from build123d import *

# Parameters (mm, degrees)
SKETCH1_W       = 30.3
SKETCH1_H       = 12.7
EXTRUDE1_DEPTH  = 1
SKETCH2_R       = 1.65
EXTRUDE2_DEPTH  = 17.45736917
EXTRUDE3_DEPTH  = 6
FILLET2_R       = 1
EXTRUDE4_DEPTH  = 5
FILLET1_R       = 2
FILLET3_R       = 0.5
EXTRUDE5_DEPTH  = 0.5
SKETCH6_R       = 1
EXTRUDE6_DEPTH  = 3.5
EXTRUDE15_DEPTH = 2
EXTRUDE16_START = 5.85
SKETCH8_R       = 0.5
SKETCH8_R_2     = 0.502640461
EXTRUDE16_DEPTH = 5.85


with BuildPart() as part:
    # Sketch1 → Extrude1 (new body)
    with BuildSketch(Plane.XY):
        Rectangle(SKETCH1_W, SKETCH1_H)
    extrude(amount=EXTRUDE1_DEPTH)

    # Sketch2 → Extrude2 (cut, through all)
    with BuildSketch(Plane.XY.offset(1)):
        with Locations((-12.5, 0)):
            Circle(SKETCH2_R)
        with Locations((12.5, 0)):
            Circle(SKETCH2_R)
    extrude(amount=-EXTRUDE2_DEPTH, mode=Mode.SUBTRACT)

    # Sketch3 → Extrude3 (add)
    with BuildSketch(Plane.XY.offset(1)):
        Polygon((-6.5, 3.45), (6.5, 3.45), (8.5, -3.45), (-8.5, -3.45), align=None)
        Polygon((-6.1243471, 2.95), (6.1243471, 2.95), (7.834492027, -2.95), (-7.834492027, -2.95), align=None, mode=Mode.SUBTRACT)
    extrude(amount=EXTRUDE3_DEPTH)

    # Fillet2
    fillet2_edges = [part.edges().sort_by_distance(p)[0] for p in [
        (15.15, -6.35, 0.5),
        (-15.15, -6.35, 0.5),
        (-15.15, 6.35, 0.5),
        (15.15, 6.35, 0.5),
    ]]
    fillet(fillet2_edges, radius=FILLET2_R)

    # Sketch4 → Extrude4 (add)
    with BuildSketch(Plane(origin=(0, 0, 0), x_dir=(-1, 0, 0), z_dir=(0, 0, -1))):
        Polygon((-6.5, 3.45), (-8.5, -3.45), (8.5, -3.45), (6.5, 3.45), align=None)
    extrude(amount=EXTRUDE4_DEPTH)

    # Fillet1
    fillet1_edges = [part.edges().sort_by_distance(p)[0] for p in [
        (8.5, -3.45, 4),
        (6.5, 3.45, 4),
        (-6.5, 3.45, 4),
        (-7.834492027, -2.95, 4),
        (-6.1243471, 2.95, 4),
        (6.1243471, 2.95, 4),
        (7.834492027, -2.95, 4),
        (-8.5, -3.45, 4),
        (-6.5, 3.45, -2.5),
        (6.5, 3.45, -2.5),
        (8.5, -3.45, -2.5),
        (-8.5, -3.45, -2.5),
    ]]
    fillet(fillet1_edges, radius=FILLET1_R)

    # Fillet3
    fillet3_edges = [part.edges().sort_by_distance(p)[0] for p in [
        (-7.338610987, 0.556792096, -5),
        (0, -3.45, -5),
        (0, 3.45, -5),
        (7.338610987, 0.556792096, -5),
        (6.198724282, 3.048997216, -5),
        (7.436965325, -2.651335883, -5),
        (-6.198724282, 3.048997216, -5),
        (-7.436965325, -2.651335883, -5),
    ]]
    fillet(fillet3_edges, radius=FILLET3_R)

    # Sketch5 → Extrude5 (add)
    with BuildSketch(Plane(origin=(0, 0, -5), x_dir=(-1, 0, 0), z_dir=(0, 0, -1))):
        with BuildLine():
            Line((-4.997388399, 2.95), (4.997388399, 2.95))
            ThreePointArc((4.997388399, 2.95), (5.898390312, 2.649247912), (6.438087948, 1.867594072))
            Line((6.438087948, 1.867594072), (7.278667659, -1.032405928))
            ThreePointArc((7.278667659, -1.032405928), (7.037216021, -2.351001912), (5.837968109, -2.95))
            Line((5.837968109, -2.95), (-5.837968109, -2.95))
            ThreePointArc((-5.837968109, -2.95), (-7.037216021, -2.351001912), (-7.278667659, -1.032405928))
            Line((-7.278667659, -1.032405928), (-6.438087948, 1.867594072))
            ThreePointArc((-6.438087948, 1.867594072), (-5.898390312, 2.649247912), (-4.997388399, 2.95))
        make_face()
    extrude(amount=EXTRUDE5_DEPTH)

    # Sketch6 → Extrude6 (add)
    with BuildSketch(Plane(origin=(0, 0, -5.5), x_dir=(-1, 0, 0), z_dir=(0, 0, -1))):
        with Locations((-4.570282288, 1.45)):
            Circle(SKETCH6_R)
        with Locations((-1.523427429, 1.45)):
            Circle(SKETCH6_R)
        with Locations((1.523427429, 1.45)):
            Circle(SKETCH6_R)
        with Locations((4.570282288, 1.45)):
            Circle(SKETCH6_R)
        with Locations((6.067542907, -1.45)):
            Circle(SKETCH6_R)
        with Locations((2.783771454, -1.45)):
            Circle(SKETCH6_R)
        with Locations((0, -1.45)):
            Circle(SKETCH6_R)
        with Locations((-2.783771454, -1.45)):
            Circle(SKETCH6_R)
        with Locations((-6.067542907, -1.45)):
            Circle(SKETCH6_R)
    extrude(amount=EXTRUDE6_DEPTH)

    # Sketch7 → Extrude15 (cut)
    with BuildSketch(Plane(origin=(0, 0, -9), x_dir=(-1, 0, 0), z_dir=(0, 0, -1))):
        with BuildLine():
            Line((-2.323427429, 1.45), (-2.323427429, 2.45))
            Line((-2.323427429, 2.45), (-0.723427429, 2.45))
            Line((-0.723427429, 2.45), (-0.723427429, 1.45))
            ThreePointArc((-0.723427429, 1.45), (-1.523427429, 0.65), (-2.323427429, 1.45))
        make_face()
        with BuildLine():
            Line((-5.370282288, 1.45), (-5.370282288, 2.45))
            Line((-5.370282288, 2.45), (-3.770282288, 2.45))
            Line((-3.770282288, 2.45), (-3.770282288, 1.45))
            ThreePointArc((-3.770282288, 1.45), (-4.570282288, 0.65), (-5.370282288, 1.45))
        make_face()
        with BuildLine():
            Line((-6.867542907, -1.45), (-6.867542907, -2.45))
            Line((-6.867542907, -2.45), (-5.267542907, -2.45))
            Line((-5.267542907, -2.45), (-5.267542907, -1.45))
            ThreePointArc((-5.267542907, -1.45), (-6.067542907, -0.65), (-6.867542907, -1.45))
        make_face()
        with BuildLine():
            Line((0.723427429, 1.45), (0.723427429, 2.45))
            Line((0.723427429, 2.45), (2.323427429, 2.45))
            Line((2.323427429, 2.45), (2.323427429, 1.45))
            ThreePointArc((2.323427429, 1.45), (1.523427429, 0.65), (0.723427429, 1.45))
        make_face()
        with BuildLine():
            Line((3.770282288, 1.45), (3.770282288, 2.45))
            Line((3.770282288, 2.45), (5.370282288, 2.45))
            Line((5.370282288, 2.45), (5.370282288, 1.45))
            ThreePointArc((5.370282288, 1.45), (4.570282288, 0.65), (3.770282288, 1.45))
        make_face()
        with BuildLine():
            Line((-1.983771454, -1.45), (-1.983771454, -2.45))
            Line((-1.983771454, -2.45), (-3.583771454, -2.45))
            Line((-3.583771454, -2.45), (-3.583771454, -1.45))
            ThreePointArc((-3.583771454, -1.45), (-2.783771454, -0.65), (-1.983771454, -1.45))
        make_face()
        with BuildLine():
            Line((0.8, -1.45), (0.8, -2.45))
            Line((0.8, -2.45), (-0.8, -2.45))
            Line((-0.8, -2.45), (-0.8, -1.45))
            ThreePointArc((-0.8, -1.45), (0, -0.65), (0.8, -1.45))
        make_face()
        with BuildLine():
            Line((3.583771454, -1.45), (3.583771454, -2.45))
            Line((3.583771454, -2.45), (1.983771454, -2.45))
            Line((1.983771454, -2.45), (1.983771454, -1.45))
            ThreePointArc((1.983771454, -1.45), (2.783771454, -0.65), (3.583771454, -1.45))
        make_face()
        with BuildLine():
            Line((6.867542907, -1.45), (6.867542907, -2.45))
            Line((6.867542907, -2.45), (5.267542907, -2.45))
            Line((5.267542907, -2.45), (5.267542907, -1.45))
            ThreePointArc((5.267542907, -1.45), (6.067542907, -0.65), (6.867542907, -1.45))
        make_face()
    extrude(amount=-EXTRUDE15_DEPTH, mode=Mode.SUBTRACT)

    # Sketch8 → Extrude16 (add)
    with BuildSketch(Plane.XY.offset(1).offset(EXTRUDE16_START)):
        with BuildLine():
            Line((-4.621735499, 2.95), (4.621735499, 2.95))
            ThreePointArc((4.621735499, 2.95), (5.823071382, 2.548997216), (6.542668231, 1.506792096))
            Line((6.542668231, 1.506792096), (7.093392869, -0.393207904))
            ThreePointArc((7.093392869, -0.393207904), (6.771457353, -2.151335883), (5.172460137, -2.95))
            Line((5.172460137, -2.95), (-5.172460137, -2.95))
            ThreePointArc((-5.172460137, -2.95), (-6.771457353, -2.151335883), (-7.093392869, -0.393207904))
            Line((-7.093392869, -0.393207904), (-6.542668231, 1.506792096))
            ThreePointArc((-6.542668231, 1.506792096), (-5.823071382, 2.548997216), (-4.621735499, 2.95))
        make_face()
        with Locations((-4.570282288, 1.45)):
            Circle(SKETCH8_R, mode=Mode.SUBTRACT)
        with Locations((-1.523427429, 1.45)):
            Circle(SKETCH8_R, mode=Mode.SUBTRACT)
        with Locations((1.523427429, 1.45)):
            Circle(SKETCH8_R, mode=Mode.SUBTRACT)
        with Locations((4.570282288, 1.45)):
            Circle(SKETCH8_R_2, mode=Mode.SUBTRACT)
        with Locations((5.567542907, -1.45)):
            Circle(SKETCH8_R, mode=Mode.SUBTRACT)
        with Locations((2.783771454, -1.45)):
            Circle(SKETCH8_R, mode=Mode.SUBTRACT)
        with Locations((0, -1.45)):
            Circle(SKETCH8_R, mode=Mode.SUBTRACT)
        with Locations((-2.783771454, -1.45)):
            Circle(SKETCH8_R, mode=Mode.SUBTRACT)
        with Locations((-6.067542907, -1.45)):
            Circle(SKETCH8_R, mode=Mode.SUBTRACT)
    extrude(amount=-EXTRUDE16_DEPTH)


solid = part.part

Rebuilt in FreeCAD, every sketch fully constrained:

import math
import FreeCAD as App
import Part
import Sketcher


def edges_at(feature, points):
    """Names of the edges that pass closest to the given points."""
    edges = feature.Shape.Edges
    near = lambda p: min(range(len(edges)), key=lambda i: edges[i].distToShape(Part.Vertex(*p))[0])
    return sorted({f"Edge{near(p) + 1}" for p in points})


def add_polygon(sketch, points):
    """Adds a closed chain of lines whose ends are joined by coincident constraints."""
    first, n = sketch.GeometryCount, len(points)
    for a, b in zip(points, points[1:] + points[:1]):
        sketch.addGeometry(Part.LineSegment(App.Vector(*a, 0), App.Vector(*b, 0)), False)
    for i in range(n):
        sketch.addConstraint(Sketcher.Constraint("Coincident", first + i, 2, first + (i + 1) % n, 1))

doc = App.newDocument("Part")
body = doc.addObject("PartDesign::Body", "Body")

sketch1 = body.newObject("Sketcher::SketchObject", "Sketch")
sketch1.AttachmentSupport = (doc.getObject("XY_Plane"), [""])
sketch1.MapMode = "FlatFace"
add_polygon(sketch1, [(-15, 6), (-15, -6), (15, -6), (15, 6)])
sketch1.addConstraint([
    Sketcher.Constraint("Vertical", 0),
    Sketcher.Constraint("Horizontal", 1),
    Sketcher.Constraint("Vertical", 2),
    Sketcher.Constraint("Horizontal", 3),
    Sketcher.Constraint("Symmetric", 0, 2, 2, 2, -1, 1),
    Sketcher.Constraint("DistanceX", 1, 1, 1, 2, 30.3),
    Sketcher.Constraint("DistanceY", 0, 2, 0, 1, 12.7),
])
pad1 = body.newObject("PartDesign::Pad", "Pad")
pad1.Profile = sketch1
pad1.Length = 1

sketch2 = body.newObject("Sketcher::SketchObject", "Sketch001")
sketch2.AttachmentSupport = (doc.getObject("XY_Plane"), [""])
sketch2.MapMode = "FlatFace"
sketch2.AttachmentOffset = App.Placement(App.Vector(0, 0, 1), App.Rotation())
sketch2.addGeometry([
    Part.Circle(App.Vector(-12.5, 0, 0), App.Vector(0, 0, 1), 1.6),
    Part.Circle(App.Vector(12.5, 0, 0), App.Vector(0, 0, 1), 1.6),
], False)
sketch2.addConstraint([
    Sketcher.Constraint("Equal", 0, 1),
    Sketcher.Constraint("Symmetric", 0, 3, 1, 3, -1, 1),
    Sketcher.Constraint("PointOnObject", 0, 3, -1),
    Sketcher.Constraint("Diameter", 0, 3.3),
    Sketcher.Constraint("DistanceX", 0, 3, 1, 3, 25.0),
])
pocket1 = body.newObject("PartDesign::Pocket", "Pocket")
pocket1.Profile = sketch2
pocket1.Type = "ThroughAll"

sketch3 = body.newObject("Sketcher::SketchObject", "Sketch002")
sketch3.AttachmentSupport = (doc.getObject("XY_Plane"), [""])
sketch3.MapMode = "FlatFace"
sketch3.AttachmentOffset = App.Placement(App.Vector(0, 0, 1), App.Rotation())
add_polygon(sketch3, [(6, 3), (-6, 3), (-8, -3), (8, -3)])
add_polygon(sketch3, [(-6, 3), (6, 3), (8, -3), (-8, -3)])
sketch3.addConstraint([
    Sketcher.Constraint("Horizontal", 0),
    Sketcher.Constraint("Horizontal", 2),
    Sketcher.Constraint("Horizontal", 4),
    Sketcher.Constraint("Horizontal", 6),
    Sketcher.Constraint("Parallel", 3, 5),
    Sketcher.Constraint("Parallel", 1, 7),
    Sketcher.Constraint("Equal", 1, 3),
    Sketcher.Constraint("DistanceX", 0, 2, 0, 1, 13.0),
    Sketcher.Constraint("DistanceX", 2, 1, 2, 2, 17.0),
    Sketcher.Constraint("DistanceX", 0, 2, -1, 1, 6.5),
    Sketcher.Constraint("DistanceY", 1, 2, 0, 2, 6.9),
    Sketcher.Constraint("DistanceY", 4, 2, 3, 2, 0.5),
    Sketcher.Constraint("DistanceY", 2, 2, 5, 2, 0.5),
    Sketcher.Constraint("DistanceY", -1, 1, 0, 2, 3.45),
    Sketcher.Constraint("DistanceX", 4, 1, 4, 2, 12.248694),
    Sketcher.Constraint("DistanceX", -1, 1, 4, 2, 6.124347),
])
pad2 = body.newObject("PartDesign::Pad", "Pad001")
pad2.Profile = sketch3
pad2.Length = 6
doc.recompute()

fillet = body.newObject("PartDesign::Fillet", "Fillet")
fillet.Base = (pad2, edges_at(pad2, [
    (15.15, -6.35, 0.5),
    (-15.15, -6.35, 0.5),
    (-15.15, 6.35, 0.5),
    (15.15, 6.35, 0.5),
]))
fillet.Radius = 1

sketch4 = body.newObject("Sketcher::SketchObject", "Sketch003")
sketch4.AttachmentSupport = (doc.getObject("XY_Plane"), [""])
sketch4.MapMode = "FlatFace"
add_polygon(sketch4, [(6, 3), (8, -3), (-8, -3), (-6, 3)])
sketch4.addConstraint([
    Sketcher.Constraint("Horizontal", 1),
    Sketcher.Constraint("Horizontal", 3),
    Sketcher.Constraint("Equal", 0, 2),
    Sketcher.Constraint("DistanceX", 1, 2, 1, 1, 17.0),
    Sketcher.Constraint("DistanceX", 3, 1, 3, 2, 13.0),
    Sketcher.Constraint("DistanceX", -1, 1, 0, 2, 8.5),
    Sketcher.Constraint("DistanceY", 1, 2, 2, 2, 6.9),
    Sketcher.Constraint("DistanceY", 0, 2, -1, 1, 3.45),
])
pad3 = body.newObject("PartDesign::Pad", "Pad002")
pad3.Profile = sketch4
pad3.Length = 5
pad3.Reversed = True
doc.recompute()

fillet2 = body.newObject("PartDesign::Fillet", "Fillet001")
fillet2.Base = (pad3, edges_at(pad3, [
    (8.5, -3.45, 4),
    (6.5, 3.45, 4),
    (-6.5, 3.45, 4),
    (-7.834, -2.95, 4),
    (-6.124, 2.95, 4),
    (6.124, 2.95, 4),
    (7.834, -2.95, 4),
    (-8.5, -3.45, 4),
    (-6.5, 3.45, -2.5),
    (6.5, 3.45, -2.5),
    (8.5, -3.45, -2.5),
    (-8.5, -3.45, -2.5),
]))
fillet2.Radius = 2
doc.recompute()

fillet3 = body.newObject("PartDesign::Fillet", "Fillet002")
fillet3.Base = (fillet2, edges_at(fillet2, [
    (-7.339, 0.557, -5),
    (0, -3.45, -5),
    (0, 3.45, -5),
    (7.339, 0.557, -5),
    (6.199, 3.049, -5),
    (7.437, -2.651, -5),
    (-6.199, 3.049, -5),
    (-7.437, -2.651, -5),
]))
fillet3.Radius = 0.5

sketch5 = body.newObject("Sketcher::SketchObject", "Sketch004")
sketch5.AttachmentSupport = (doc.getObject("XY_Plane"), [""])
sketch5.MapMode = "FlatFace"
sketch5.AttachmentOffset = App.Placement(App.Vector(0, 0, -5), App.Rotation())
sketch5.addGeometry([
    Part.LineSegment(App.Vector(-5, 3, 0), App.Vector(5, 3, 0)),
    Part.ArcOfCircle(Part.Circle(App.Vector(5, 1.5, 0), App.Vector(0, 0, 1), 1.5), math.radians(16), math.radians(90)),
    Part.LineSegment(App.Vector(6.4, 1.9, 0), App.Vector(7.3, -1, 0)),
    Part.ArcOfCircle(Part.Circle(App.Vector(5.8, -1.4, 0), App.Vector(0, 0, 1), 1.5), math.radians(-90), math.radians(16)),
    Part.LineSegment(App.Vector(5.8, -3, 0), App.Vector(-5.8, -3, 0)),
    Part.ArcOfCircle(Part.Circle(App.Vector(-5.8, -1.4, 0), App.Vector(0, 0, 1), 1.5), math.radians(164), math.radians(270)),
    Part.LineSegment(App.Vector(-7.3, -1, 0), App.Vector(-6.4, 1.9, 0)),
    Part.ArcOfCircle(Part.Circle(App.Vector(-5, 1.5, 0), App.Vector(0, 0, 1), 1.5), math.radians(90), math.radians(164)),
], False)
sketch5.addConstraint([
    Sketcher.Constraint("Tangent", 0, 2, 1, 2),
    Sketcher.Constraint("Tangent", 1, 1, 2, 1),
    Sketcher.Constraint("Tangent", 2, 2, 3, 2),
    Sketcher.Constraint("Tangent", 3, 1, 4, 1),
    Sketcher.Constraint("Tangent", 4, 2, 5, 2),
    Sketcher.Constraint("Tangent", 5, 1, 6, 1),
    Sketcher.Constraint("Tangent", 6, 2, 7, 2),
    Sketcher.Constraint("Tangent", 7, 1, 0, 1),
    Sketcher.Constraint("Horizontal", 0),
    Sketcher.Constraint("Horizontal", 4),
    Sketcher.Constraint("Equal", 1, 3),
    Sketcher.Constraint("Equal", 3, 5),
    Sketcher.Constraint("Equal", 5, 7),
    Sketcher.Constraint("Symmetric", 2, 2, 5, 1, -2),
    Sketcher.Constraint("Radius", 1, 1.5),
    Sketcher.Constraint("DistanceY", 3, 3, 1, 3, 2.9),
    Sketcher.Constraint("DistanceY", -1, 1, 1, 3, 1.45),
    Sketcher.Constraint("DistanceX", 1, 3, 1, 1, 1.4407),
    Sketcher.Constraint("DistanceX", 0, 1, 0, 2, 9.994777),
])
pad4 = body.newObject("PartDesign::Pad", "Pad003")
pad4.Profile = sketch5
pad4.Length = 0.5
pad4.Reversed = True

sketch6 = body.newObject("Sketcher::SketchObject", "Sketch005")
sketch6.AttachmentSupport = (doc.getObject("XY_Plane"), [""])
sketch6.MapMode = "FlatFace"
sketch6.AttachmentOffset = App.Placement(App.Vector(0, 0, -5.5), App.Rotation())
sketch6.addGeometry([
    Part.Circle(App.Vector(4.6, 1.4, 0), App.Vector(0, 0, 1), 1),
    Part.Circle(App.Vector(1.5, 1.4, 0), App.Vector(0, 0, 1), 1),
    Part.Circle(App.Vector(-1.5, 1.4, 0), App.Vector(0, 0, 1), 1),
    Part.Circle(App.Vector(-4.6, 1.4, 0), App.Vector(0, 0, 1), 1),
    Part.Circle(App.Vector(-6.1, -1.4, 0), App.Vector(0, 0, 1), 1),
    Part.Circle(App.Vector(-2.8, -1.4, 0), App.Vector(0, 0, 1), 1),
    Part.Circle(App.Vector(0, -1.4, 0), App.Vector(0, 0, 1), 1),
    Part.Circle(App.Vector(2.8, -1.4, 0), App.Vector(0, 0, 1), 1),
    Part.Circle(App.Vector(6.1, -1.4, 0), App.Vector(0, 0, 1), 1),
], False)
sketch6.addConstraint([
    Sketcher.Constraint("Equal", 0, 1),
    Sketcher.Constraint("Equal", 1, 2),
    Sketcher.Constraint("Equal", 2, 3),
    Sketcher.Constraint("Equal", 3, 4),
    Sketcher.Constraint("Equal", 4, 5),
    Sketcher.Constraint("Equal", 5, 6),
    Sketcher.Constraint("Equal", 6, 7),
    Sketcher.Constraint("Equal", 7, 8),
    Sketcher.Constraint("Symmetric", 1, 3, 2, 3, -2),
    Sketcher.Constraint("Symmetric", 0, 3, 3, 3, -2),
    Sketcher.Constraint("Symmetric", 5, 3, 7, 3, -2),
    Sketcher.Constraint("Symmetric", 4, 3, 8, 3, -2),
    Sketcher.Constraint("PointOnObject", 6, 3, -2),
    Sketcher.Constraint("Horizontal", 0, 3, 1, 3),
    Sketcher.Constraint("Horizontal", 4, 3, 5, 3),
    Sketcher.Constraint("Horizontal", 5, 3, 6, 3),
    Sketcher.Constraint("Diameter", 0, 2.0),
    Sketcher.Constraint("DistanceY", 4, 3, 3, 3, 2.9),
    Sketcher.Constraint("DistanceY", -1, 1, 0, 3, 1.45),
    Sketcher.Constraint("DistanceX", 5, 3, 1, 3, 4.307199),
    Sketcher.Constraint("DistanceX", 5, 3, -1, 1, 2.783771),
    Sketcher.Constraint("DistanceX", 2, 3, 0, 3, 6.09371),
    Sketcher.Constraint("DistanceX", 4, 3, 3, 3, 1.497261),
])
pad5 = body.newObject("PartDesign::Pad", "Pad004")
pad5.Profile = sketch6
pad5.Length = 3.5
pad5.Reversed = True

sketch7 = body.newObject("Sketcher::SketchObject", "Sketch006")
sketch7.AttachmentSupport = (doc.getObject("XY_Plane"), [""])
sketch7.MapMode = "FlatFace"
sketch7.AttachmentOffset = App.Placement(App.Vector(0, 0, -9), App.Rotation())
sketch7.addGeometry([
    Part.LineSegment(App.Vector(2.3, 2.5, 0), App.Vector(2.3, 1.4, 0)),
    Part.ArcOfCircle(Part.Circle(App.Vector(1.5, 1.4, 0), App.Vector(0, 0, 1), 0.8), math.radians(180), math.radians(360)),
    Part.LineSegment(App.Vector(0.7, 1.4, 0), App.Vector(0.7, 2.5, 0)),
    Part.LineSegment(App.Vector(0.7, 2.5, 0), App.Vector(2.3, 2.5, 0)),
    Part.LineSegment(App.Vector(5.4, 2.5, 0), App.Vector(5.4, 1.4, 0)),
    Part.ArcOfCircle(Part.Circle(App.Vector(4.6, 1.4, 0), App.Vector(0, 0, 1), 0.8), math.radians(180), math.radians(360)),
    Part.LineSegment(App.Vector(3.8, 1.4, 0), App.Vector(3.8, 2.5, 0)),
    Part.LineSegment(App.Vector(3.8, 2.5, 0), App.Vector(5.4, 2.5, 0)),
    Part.LineSegment(App.Vector(6.9, -1.4, 0), App.Vector(6.9, -2.5, 0)),
    Part.LineSegment(App.Vector(6.9, -2.5, 0), App.Vector(5.3, -2.5, 0)),
    Part.LineSegment(App.Vector(5.3, -2.5, 0), App.Vector(5.3, -1.4, 0)),
    Part.ArcOfCircle(Part.Circle(App.Vector(6.1, -1.4, 0), App.Vector(0, 0, 1), 0.8), math.radians(0), math.radians(180)),
    Part.LineSegment(App.Vector(-0.7, 2.5, 0), App.Vector(-0.7, 1.4, 0)),
    Part.ArcOfCircle(Part.Circle(App.Vector(-1.5, 1.4, 0), App.Vector(0, 0, 1), 0.8), math.radians(180), math.radians(360)),
    Part.LineSegment(App.Vector(-2.3, 1.4, 0), App.Vector(-2.3, 2.5, 0)),
    Part.LineSegment(App.Vector(-2.3, 2.5, 0), App.Vector(-0.7, 2.5, 0)),
    Part.LineSegment(App.Vector(-3.8, 2.5, 0), App.Vector(-3.8, 1.4, 0)),
    Part.ArcOfCircle(Part.Circle(App.Vector(-4.6, 1.4, 0), App.Vector(0, 0, 1), 0.8), math.radians(180), math.radians(360)),
    Part.LineSegment(App.Vector(-5.4, 1.4, 0), App.Vector(-5.4, 2.5, 0)),
    Part.LineSegment(App.Vector(-5.4, 2.5, 0), App.Vector(-3.8, 2.5, 0)),
    Part.LineSegment(App.Vector(2, -2.5, 0), App.Vector(2, -1.4, 0)),
    Part.ArcOfCircle(Part.Circle(App.Vector(2.8, -1.4, 0), App.Vector(0, 0, 1), 0.8), math.radians(0), math.radians(180)),
    Part.LineSegment(App.Vector(3.6, -1.4, 0), App.Vector(3.6, -2.5, 0)),
    Part.LineSegment(App.Vector(3.6, -2.5, 0), App.Vector(2, -2.5, 0)),
    Part.LineSegment(App.Vector(-0.8, -2.5, 0), App.Vector(-0.8, -1.4, 0)),
    Part.ArcOfCircle(Part.Circle(App.Vector(0, -1.4, 0), App.Vector(0, 0, 1), 0.8), math.radians(0), math.radians(180)),
    Part.LineSegment(App.Vector(0.8, -1.4, 0), App.Vector(0.8, -2.5, 0)),
    Part.LineSegment(App.Vector(0.8, -2.5, 0), App.Vector(-0.8, -2.5, 0)),
    Part.LineSegment(App.Vector(-3.6, -2.5, 0), App.Vector(-3.6, -1.4, 0)),
    Part.ArcOfCircle(Part.Circle(App.Vector(-2.8, -1.4, 0), App.Vector(0, 0, 1), 0.8), math.radians(0), math.radians(180)),
    Part.LineSegment(App.Vector(-2, -1.4, 0), App.Vector(-2, -2.5, 0)),
    Part.LineSegment(App.Vector(-2, -2.5, 0), App.Vector(-3.6, -2.5, 0)),
    Part.LineSegment(App.Vector(-6.9, -2.5, 0), App.Vector(-6.9, -1.4, 0)),
    Part.ArcOfCircle(Part.Circle(App.Vector(-6.1, -1.4, 0), App.Vector(0, 0, 1), 0.8), math.radians(0), math.radians(180)),
    Part.LineSegment(App.Vector(-5.3, -1.4, 0), App.Vector(-5.3, -2.5, 0)),
    Part.LineSegment(App.Vector(-5.3, -2.5, 0), App.Vector(-6.9, -2.5, 0)),
], False)
sketch7.addConstraint([
    Sketcher.Constraint("Tangent", 0, 2, 1, 2),
    Sketcher.Constraint("Tangent", 1, 1, 2, 1),
    Sketcher.Constraint("Coincident", 2, 2, 3, 1),
    Sketcher.Constraint("Coincident", 3, 2, 0, 1),
    Sketcher.Constraint("Tangent", 4, 2, 5, 2),
    Sketcher.Constraint("Tangent", 5, 1, 6, 1),
    Sketcher.Constraint("Coincident", 6, 2, 7, 1),
    Sketcher.Constraint("Coincident", 7, 2, 4, 1),
    Sketcher.Constraint("Coincident", 8, 2, 9, 1),
    Sketcher.Constraint("Coincident", 9, 2, 10, 1),
    Sketcher.Constraint("Tangent", 10, 2, 11, 2),
    Sketcher.Constraint("Tangent", 11, 1, 8, 1),
    Sketcher.Constraint("Tangent", 12, 2, 13, 2),
    Sketcher.Constraint("Tangent", 13, 1, 14, 1),
    Sketcher.Constraint("Coincident", 14, 2, 15, 1),
    Sketcher.Constraint("Coincident", 15, 2, 12, 1),
    Sketcher.Constraint("Tangent", 16, 2, 17, 2),
    Sketcher.Constraint("Tangent", 17, 1, 18, 1),
    Sketcher.Constraint("Coincident", 18, 2, 19, 1),
    Sketcher.Constraint("Coincident", 19, 2, 16, 1),
    Sketcher.Constraint("Tangent", 20, 2, 21, 2),
    Sketcher.Constraint("Tangent", 21, 1, 22, 1),
    Sketcher.Constraint("Coincident", 22, 2, 23, 1),
    Sketcher.Constraint("Coincident", 23, 2, 20, 1),
    Sketcher.Constraint("Tangent", 24, 2, 25, 2),
    Sketcher.Constraint("Tangent", 25, 1, 26, 1),
    Sketcher.Constraint("Coincident", 26, 2, 27, 1),
    Sketcher.Constraint("Coincident", 27, 2, 24, 1),
    Sketcher.Constraint("Tangent", 28, 2, 29, 2),
    Sketcher.Constraint("Tangent", 29, 1, 30, 1),
    Sketcher.Constraint("Coincident", 30, 2, 31, 1),
    Sketcher.Constraint("Coincident", 31, 2, 28, 1),
    Sketcher.Constraint("Tangent", 32, 2, 33, 2),
    Sketcher.Constraint("Tangent", 33, 1, 34, 1),
    Sketcher.Constraint("Coincident", 34, 2, 35, 1),
    Sketcher.Constraint("Coincident", 35, 2, 32, 1),
    Sketcher.Constraint("Vertical", 0),
    Sketcher.Constraint("Vertical", 2),
    Sketcher.Constraint("Horizontal", 3),
    Sketcher.Constraint("Vertical", 4),
    Sketcher.Constraint("Vertical", 6),
    Sketcher.Constraint("Horizontal", 7),
    Sketcher.Constraint("Vertical", 8),
    Sketcher.Constraint("Horizontal", 9),
    Sketcher.Constraint("Vertical", 10),
    Sketcher.Constraint("Vertical", 12),
    Sketcher.Constraint("Vertical", 14),
    Sketcher.Constraint("Horizontal", 15),
    Sketcher.Constraint("Vertical", 16),
    Sketcher.Constraint("Vertical", 18),
    Sketcher.Constraint("Horizontal", 19),
    Sketcher.Constraint("Vertical", 20),
    Sketcher.Constraint("Vertical", 22),
    Sketcher.Constraint("Horizontal", 23),
    Sketcher.Constraint("Vertical", 24),
    Sketcher.Constraint("Vertical", 26),
    Sketcher.Constraint("Horizontal", 27),
    Sketcher.Constraint("Vertical", 28),
    Sketcher.Constraint("Vertical", 30),
    Sketcher.Constraint("Horizontal", 31),
    Sketcher.Constraint("Vertical", 32),
    Sketcher.Constraint("Vertical", 34),
    Sketcher.Constraint("Horizontal", 35),
    Sketcher.Constraint("Equal", 1, 5),
    Sketcher.Constraint("Equal", 5, 11),
    Sketcher.Constraint("Equal", 11, 13),
    Sketcher.Constraint("Equal", 13, 17),
    Sketcher.Constraint("Equal", 17, 21),
    Sketcher.Constraint("Equal", 21, 25),
    Sketcher.Constraint("Equal", 25, 29),
    Sketcher.Constraint("Equal", 29, 33),
    Sketcher.Constraint("Symmetric", 1, 3, 13, 3, -2),
    Sketcher.Constraint("Symmetric", 5, 3, 17, 3, -2),
    Sketcher.Constraint("Symmetric", 21, 3, 29, 3, -2),
    Sketcher.Constraint("Symmetric", 11, 3, 33, 3, -2),
    Sketcher.Constraint("PointOnObject", 25, 3, -2),
    Sketcher.Constraint("Horizontal", 1, 3, 5, 3),
    Sketcher.Constraint("Horizontal", 11, 3, 21, 3),
    Sketcher.Constraint("Horizontal", 21, 3, 25, 3),
    Sketcher.Constraint("Horizontal", 3, 2, 6, 2),
    Sketcher.Constraint("Horizontal", 7, 2, 14, 2),
    Sketcher.Constraint("Horizontal", 15, 2, 18, 2),
    Sketcher.Constraint("Horizontal", 9, 2, 22, 2),
    Sketcher.Constraint("Horizontal", 23, 2, 26, 2),
    Sketcher.Constraint("Horizontal", 27, 2, 30, 2),
    Sketcher.Constraint("Horizontal", 31, 2, 34, 2),
    Sketcher.Constraint("Equal", 6, 8),
    Sketcher.Constraint("Radius", 1, 0.8),
    Sketcher.Constraint("DistanceY", 0, 2, 0, 1, 1.0),
    Sketcher.Constraint("DistanceY", 11, 3, 5, 3, 2.9),
    Sketcher.Constraint("DistanceY", -1, 1, 1, 3, 1.45),
    Sketcher.Constraint("DistanceX", 13, 3, 21, 3, 4.307199),
    Sketcher.Constraint("DistanceX", -1, 1, 21, 3, 2.783771),
    Sketcher.Constraint("DistanceX", 5, 3, 11, 3, 1.497261),
    Sketcher.Constraint("DistanceX", 13, 3, 5, 3, 6.09371),
])
pocket2 = body.newObject("PartDesign::Pocket", "Pocket001")
pocket2.Profile = sketch7
pocket2.Length = 2
pocket2.Reversed = True

sketch8 = body.newObject("Sketcher::SketchObject", "Sketch007")
sketch8.AttachmentSupport = (doc.getObject("XY_Plane"), [""])
sketch8.MapMode = "FlatFace"
sketch8.AttachmentOffset = App.Placement(App.Vector(0, 0, 6.85), App.Rotation())
sketch8.addGeometry([
    Part.LineSegment(App.Vector(4.6, 3, 0), App.Vector(-4.6, 3, 0)),
    Part.ArcOfCircle(Part.Circle(App.Vector(-4.6, 1, 0), App.Vector(0, 0, 1), 2), math.radians(90), math.radians(164)),
    Part.LineSegment(App.Vector(-6.5, 1.5, 0), App.Vector(-7.1, -0.4, 0)),
    Part.ArcOfCircle(Part.Circle(App.Vector(-5.2, -1, 0), App.Vector(0, 0, 1), 2), math.radians(164), math.radians(270)),
    Part.LineSegment(App.Vector(-5.2, -3, 0), App.Vector(5.2, -3, 0)),
    Part.ArcOfCircle(Part.Circle(App.Vector(5.2, -1, 0), App.Vector(0, 0, 1), 2), math.radians(-90), math.radians(16)),
    Part.LineSegment(App.Vector(7.1, -0.4, 0), App.Vector(6.5, 1.5, 0)),
    Part.ArcOfCircle(Part.Circle(App.Vector(4.6, 1, 0), App.Vector(0, 0, 1), 2), math.radians(16), math.radians(90)),
    Part.Circle(App.Vector(5.6, -1.4, 0), App.Vector(0, 0, 1), 0.5),
    Part.Circle(App.Vector(2.8, -1.4, 0), App.Vector(0, 0, 1), 0.5),
    Part.Circle(App.Vector(0, -1.4, 0), App.Vector(0, 0, 1), 0.5),
    Part.Circle(App.Vector(-2.8, -1.4, 0), App.Vector(0, 0, 1), 0.5),
    Part.Circle(App.Vector(-6.1, -1.4, 0), App.Vector(0, 0, 1), 0.5),
    Part.Circle(App.Vector(4.6, 1.4, 0), App.Vector(0, 0, 1), 0.5),
    Part.Circle(App.Vector(1.5, 1.4, 0), App.Vector(0, 0, 1), 0.5),
    Part.Circle(App.Vector(-1.5, 1.4, 0), App.Vector(0, 0, 1), 0.5),
    Part.Circle(App.Vector(-4.6, 1.4, 0), App.Vector(0, 0, 1), 0.5),
], False)
sketch8.addConstraint([
    Sketcher.Constraint("Tangent", 0, 2, 1, 1),
    Sketcher.Constraint("Tangent", 1, 2, 2, 1),
    Sketcher.Constraint("Tangent", 2, 2, 3, 1),
    Sketcher.Constraint("Tangent", 3, 2, 4, 1),
    Sketcher.Constraint("Tangent", 4, 2, 5, 1),
    Sketcher.Constraint("Tangent", 5, 2, 6, 1),
    Sketcher.Constraint("Tangent", 6, 2, 7, 1),
    Sketcher.Constraint("Tangent", 7, 2, 0, 1),
    Sketcher.Constraint("Horizontal", 0),
    Sketcher.Constraint("Horizontal", 4),
    Sketcher.Constraint("Equal", 1, 3),
    Sketcher.Constraint("Equal", 3, 5),
    Sketcher.Constraint("Equal", 5, 7),
    Sketcher.Constraint("Equal", 8, 9),
    Sketcher.Constraint("Equal", 9, 10),
    Sketcher.Constraint("Equal", 10, 11),
    Sketcher.Constraint("Equal", 11, 12),
    Sketcher.Constraint("Equal", 12, 14),
    Sketcher.Constraint("Equal", 14, 15),
    Sketcher.Constraint("Equal", 15, 16),
    Sketcher.Constraint("Symmetric", 9, 3, 11, 3, -2),
    Sketcher.Constraint("Symmetric", 14, 3, 15, 3, -2),
    Sketcher.Constraint("Symmetric", 13, 3, 16, 3, -2),
    Sketcher.Constraint("Symmetric", 2, 2, 5, 2, -2),
    Sketcher.Constraint("PointOnObject", 10, 3, -2),
    Sketcher.Constraint("Horizontal", 8, 3, 9, 3),
    Sketcher.Constraint("Horizontal", 9, 3, 10, 3),
    Sketcher.Constraint("Horizontal", 11, 3, 12, 3),
    Sketcher.Constraint("Horizontal", 13, 3, 14, 3),
    Sketcher.Constraint("Diameter", 8, 1.0),
    Sketcher.Constraint("Radius", 1, 2.0),
    Sketcher.Constraint("DistanceY", 3, 3, 1, 3, 1.9),
    Sketcher.Constraint("DistanceY", 8, 3, 5, 3, 0.5),
    Sketcher.Constraint("DistanceY", 7, 3, 13, 3, 0.5),
    Sketcher.Constraint("Diameter", 13, 1.005281),
    Sketcher.Constraint("DistanceY", -1, 1, 1, 3, 0.95),
    Sketcher.Constraint("DistanceX", 0, 2, 0, 1, 9.243471),
    Sketcher.Constraint("DistanceX", 4, 1, 4, 2, 10.34492),
    Sketcher.Constraint("DistanceX", -1, 1, 9, 3, 2.783771),
    Sketcher.Constraint("DistanceX", 1, 3, 8, 3, 10.189278),
    Sketcher.Constraint("DistanceX", 12, 3, 11, 3, 3.283771),
    Sketcher.Constraint("DistanceX", 13, 3, 8, 3, 0.997261),
    Sketcher.Constraint("DistanceX", 14, 3, 7, 3, 3.098308),
])
pad6 = body.newObject("PartDesign::Pad", "Pad005")
pad6.Profile = sketch8
pad6.Length = 5.85
pad6.Reversed = True

doc.recompute()
